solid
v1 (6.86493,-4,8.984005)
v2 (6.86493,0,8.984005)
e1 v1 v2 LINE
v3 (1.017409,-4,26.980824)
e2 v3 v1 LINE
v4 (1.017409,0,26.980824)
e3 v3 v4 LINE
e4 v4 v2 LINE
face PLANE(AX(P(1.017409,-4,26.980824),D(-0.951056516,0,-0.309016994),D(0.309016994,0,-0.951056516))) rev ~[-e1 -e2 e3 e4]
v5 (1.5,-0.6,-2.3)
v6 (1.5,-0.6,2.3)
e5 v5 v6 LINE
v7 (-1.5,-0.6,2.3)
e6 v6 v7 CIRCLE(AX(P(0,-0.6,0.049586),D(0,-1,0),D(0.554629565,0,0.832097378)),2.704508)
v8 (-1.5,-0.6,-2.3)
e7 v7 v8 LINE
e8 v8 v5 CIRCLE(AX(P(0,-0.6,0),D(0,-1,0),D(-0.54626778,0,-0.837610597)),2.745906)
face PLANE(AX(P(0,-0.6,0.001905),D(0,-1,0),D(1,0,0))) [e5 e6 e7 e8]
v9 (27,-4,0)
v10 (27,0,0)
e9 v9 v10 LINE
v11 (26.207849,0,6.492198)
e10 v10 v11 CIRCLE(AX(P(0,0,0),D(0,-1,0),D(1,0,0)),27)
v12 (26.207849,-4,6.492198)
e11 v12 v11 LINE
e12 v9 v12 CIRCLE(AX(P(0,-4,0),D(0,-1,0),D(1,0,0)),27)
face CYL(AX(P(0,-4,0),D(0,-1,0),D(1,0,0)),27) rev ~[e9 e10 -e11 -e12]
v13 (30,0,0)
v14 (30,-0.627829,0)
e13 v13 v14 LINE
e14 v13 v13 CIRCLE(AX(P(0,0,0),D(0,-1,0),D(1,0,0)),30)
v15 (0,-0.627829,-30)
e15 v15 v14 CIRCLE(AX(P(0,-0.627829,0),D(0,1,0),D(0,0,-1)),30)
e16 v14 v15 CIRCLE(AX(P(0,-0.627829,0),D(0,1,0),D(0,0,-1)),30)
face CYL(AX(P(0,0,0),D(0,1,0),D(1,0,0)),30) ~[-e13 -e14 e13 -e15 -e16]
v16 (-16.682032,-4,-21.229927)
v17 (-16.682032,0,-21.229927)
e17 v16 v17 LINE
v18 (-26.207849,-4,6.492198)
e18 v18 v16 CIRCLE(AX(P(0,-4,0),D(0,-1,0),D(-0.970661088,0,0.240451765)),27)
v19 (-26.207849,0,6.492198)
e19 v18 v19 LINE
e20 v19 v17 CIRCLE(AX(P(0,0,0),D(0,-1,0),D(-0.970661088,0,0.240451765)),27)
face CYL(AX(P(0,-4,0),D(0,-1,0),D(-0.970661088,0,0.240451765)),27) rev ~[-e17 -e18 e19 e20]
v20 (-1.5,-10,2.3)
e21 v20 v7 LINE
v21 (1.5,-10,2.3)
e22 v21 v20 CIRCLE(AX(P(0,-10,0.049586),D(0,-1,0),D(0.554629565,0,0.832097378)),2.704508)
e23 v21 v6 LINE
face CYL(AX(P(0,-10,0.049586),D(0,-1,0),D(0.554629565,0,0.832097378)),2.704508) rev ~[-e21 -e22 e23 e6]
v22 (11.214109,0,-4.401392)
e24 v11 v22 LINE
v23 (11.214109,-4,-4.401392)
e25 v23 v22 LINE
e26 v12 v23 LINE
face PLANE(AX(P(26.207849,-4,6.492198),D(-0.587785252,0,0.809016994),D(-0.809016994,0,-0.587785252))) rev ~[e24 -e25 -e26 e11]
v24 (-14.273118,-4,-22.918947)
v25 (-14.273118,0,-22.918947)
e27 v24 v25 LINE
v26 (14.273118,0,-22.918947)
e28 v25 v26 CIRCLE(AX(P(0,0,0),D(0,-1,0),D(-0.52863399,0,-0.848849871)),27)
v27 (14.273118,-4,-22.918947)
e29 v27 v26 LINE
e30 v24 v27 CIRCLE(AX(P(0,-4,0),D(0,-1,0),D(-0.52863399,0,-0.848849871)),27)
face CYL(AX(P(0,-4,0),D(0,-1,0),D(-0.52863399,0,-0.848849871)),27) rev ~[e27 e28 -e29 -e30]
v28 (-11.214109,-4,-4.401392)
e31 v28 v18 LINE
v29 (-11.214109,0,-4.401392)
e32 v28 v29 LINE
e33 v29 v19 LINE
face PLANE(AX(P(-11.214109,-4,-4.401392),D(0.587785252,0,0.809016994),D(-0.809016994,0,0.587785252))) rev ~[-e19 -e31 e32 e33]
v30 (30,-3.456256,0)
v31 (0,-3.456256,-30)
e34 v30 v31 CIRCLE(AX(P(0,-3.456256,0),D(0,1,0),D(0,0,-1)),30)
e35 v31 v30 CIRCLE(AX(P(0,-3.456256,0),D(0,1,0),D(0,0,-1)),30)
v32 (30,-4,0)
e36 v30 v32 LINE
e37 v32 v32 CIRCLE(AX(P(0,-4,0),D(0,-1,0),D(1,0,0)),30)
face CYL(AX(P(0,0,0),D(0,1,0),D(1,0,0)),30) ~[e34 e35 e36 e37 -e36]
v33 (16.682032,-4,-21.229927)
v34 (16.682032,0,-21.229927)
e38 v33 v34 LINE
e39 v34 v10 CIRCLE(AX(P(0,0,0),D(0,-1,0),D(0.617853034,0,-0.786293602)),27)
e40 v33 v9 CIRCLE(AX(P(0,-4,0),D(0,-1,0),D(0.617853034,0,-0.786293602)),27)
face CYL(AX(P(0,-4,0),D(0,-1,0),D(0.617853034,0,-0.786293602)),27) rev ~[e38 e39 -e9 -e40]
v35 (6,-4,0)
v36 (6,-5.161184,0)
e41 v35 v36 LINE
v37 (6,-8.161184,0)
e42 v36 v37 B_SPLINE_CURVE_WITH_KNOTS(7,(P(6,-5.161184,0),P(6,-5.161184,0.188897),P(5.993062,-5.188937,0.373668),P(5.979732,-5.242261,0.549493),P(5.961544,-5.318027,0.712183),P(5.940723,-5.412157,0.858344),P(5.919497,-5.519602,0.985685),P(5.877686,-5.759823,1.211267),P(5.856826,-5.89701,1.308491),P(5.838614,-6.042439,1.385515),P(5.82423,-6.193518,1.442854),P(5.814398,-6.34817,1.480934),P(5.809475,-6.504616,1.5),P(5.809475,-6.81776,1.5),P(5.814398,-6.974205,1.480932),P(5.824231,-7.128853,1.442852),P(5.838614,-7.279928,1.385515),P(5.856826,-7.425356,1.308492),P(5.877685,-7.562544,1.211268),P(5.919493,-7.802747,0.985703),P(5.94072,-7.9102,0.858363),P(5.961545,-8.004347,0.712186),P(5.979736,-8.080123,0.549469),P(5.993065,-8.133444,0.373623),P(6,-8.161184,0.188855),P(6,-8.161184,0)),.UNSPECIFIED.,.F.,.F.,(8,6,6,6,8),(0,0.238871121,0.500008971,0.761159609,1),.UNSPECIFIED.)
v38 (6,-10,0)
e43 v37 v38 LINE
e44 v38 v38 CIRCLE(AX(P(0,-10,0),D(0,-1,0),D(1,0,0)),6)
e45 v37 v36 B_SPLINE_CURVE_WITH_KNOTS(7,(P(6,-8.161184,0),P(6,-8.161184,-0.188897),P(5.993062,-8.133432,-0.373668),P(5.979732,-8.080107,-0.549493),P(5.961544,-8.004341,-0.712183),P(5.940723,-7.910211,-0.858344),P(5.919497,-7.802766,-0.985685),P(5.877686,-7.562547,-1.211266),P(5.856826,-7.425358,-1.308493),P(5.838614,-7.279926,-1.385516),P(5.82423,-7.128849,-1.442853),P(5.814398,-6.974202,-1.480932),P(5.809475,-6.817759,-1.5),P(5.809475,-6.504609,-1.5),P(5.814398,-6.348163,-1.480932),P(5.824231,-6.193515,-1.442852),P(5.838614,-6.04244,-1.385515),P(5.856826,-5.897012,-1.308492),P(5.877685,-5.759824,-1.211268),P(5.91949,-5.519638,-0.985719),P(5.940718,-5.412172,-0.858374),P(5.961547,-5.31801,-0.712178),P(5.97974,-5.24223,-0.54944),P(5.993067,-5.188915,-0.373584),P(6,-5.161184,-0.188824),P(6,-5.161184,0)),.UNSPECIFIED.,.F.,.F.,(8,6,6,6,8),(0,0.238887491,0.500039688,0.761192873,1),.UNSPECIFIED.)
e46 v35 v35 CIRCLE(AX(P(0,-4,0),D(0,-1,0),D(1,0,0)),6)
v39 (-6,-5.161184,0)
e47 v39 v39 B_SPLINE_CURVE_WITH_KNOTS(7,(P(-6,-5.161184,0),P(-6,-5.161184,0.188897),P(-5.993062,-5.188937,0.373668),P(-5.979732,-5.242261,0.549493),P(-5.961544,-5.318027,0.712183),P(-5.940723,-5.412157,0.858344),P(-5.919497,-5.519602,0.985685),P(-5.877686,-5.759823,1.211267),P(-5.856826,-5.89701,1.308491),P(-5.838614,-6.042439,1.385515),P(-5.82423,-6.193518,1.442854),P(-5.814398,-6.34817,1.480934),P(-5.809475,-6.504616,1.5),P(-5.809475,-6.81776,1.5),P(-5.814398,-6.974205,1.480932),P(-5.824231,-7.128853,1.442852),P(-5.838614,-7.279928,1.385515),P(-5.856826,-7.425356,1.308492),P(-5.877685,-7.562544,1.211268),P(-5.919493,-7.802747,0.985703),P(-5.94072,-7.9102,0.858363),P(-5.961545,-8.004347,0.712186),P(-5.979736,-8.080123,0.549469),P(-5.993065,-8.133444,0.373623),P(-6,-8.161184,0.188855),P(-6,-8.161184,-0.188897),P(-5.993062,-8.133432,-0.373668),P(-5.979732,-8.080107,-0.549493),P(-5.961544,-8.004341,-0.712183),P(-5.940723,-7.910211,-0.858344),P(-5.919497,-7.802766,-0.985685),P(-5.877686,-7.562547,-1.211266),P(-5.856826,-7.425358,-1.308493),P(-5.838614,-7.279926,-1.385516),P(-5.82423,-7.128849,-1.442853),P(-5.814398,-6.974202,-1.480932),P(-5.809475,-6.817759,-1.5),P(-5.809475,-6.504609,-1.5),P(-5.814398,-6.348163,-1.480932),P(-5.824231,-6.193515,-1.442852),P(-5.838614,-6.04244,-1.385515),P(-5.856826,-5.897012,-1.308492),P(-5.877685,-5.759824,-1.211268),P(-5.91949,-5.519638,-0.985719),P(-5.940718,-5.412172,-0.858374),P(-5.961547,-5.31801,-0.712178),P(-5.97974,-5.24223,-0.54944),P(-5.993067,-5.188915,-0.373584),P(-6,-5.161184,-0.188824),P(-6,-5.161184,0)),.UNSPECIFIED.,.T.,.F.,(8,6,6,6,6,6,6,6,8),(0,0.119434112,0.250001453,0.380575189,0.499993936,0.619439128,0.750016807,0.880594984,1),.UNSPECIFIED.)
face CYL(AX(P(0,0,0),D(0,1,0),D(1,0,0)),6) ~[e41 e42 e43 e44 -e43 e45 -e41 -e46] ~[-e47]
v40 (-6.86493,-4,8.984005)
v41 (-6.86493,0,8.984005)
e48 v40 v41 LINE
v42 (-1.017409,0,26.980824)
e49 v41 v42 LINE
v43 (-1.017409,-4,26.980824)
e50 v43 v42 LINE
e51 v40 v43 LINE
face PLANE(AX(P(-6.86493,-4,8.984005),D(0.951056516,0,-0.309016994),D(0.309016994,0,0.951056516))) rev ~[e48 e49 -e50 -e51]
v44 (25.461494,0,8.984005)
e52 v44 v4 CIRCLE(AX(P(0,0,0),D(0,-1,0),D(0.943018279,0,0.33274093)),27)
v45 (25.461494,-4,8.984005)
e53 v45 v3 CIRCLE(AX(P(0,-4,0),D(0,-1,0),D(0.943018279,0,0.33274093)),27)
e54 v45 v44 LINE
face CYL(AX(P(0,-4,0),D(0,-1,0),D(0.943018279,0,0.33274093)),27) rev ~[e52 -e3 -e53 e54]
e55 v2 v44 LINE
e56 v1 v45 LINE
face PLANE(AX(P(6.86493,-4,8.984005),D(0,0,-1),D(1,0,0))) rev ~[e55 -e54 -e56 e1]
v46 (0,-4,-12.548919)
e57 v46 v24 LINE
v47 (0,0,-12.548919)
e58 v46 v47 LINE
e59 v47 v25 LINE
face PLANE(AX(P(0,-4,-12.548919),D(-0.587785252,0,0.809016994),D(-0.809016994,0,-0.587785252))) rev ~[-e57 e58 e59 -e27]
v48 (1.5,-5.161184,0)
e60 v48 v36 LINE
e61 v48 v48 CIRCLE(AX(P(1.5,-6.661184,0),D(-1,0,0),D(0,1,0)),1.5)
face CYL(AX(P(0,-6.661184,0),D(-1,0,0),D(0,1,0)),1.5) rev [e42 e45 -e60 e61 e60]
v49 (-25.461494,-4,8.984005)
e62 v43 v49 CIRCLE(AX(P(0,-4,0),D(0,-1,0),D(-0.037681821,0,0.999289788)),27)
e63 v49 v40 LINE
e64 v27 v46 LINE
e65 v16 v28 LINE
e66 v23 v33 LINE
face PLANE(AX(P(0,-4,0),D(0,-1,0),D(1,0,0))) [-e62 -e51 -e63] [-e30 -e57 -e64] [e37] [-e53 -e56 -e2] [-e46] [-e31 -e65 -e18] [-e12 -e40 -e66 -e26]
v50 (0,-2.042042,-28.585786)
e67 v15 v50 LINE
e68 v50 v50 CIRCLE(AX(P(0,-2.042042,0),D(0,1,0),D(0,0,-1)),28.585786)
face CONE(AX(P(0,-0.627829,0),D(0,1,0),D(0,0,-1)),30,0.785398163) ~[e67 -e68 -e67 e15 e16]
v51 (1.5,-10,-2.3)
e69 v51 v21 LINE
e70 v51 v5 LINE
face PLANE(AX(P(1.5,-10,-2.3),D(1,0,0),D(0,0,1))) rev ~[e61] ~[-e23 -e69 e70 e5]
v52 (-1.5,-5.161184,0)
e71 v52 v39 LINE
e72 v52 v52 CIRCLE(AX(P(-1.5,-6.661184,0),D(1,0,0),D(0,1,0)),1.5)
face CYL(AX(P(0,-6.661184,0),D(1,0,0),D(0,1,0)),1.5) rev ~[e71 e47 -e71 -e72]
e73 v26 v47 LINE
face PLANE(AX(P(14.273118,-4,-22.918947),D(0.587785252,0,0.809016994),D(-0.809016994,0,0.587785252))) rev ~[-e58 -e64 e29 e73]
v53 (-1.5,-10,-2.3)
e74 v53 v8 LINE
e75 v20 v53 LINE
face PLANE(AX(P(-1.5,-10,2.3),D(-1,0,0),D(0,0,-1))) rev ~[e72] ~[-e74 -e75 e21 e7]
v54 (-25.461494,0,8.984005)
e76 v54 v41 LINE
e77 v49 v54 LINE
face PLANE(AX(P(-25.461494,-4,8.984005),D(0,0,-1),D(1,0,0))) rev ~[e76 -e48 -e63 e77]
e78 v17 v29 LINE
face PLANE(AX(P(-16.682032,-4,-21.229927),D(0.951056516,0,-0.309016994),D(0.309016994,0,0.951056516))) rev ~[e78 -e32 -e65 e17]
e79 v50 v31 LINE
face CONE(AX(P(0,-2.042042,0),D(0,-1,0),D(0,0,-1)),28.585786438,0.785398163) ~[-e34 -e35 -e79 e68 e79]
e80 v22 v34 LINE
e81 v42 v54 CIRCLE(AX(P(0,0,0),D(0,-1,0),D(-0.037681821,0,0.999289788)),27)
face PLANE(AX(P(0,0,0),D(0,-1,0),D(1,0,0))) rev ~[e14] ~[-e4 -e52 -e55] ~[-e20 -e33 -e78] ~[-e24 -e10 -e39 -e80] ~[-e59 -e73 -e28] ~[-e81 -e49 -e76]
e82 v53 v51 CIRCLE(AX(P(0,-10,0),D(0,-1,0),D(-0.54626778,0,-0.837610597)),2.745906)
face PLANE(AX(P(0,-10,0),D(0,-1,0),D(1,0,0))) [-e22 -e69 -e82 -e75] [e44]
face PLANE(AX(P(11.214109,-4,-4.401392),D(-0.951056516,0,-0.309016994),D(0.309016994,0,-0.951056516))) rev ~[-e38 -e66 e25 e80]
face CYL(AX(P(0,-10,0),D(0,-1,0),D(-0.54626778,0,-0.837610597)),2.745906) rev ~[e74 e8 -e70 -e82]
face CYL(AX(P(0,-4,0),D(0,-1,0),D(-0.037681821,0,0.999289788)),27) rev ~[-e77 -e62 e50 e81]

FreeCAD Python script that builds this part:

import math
import FreeCAD as App
import Part
import Sketcher
from FreeCAD import Vector
Q = App.Units.Quantity


def add_polygon(sketch, points):
    """Adds a closed chain of lines whose ends are joined by coincident constraints."""
    first, n = sketch.GeometryCount, len(points)
    for a, b in zip(points, points[1:] + points[:1]):
        sketch.addGeometry(Part.LineSegment(App.Vector(*a, 0), App.Vector(*b, 0)), False)
    for i in range(n):
        sketch.addConstraint(Sketcher.Constraint("Coincident", first + i, 2, first + (i + 1) % n, 1))

doc = App.newDocument("Part")
params = doc.addObject("Spreadsheet::Sheet", "Params")
for row, (alias, value) in enumerate([
    ("sketch1_diameter", "12 mm"),
    ("pad1_length", "10 mm"),
    ("sketch2_diameter", "60 mm"),
    ("sketch2_diameter2", "12 mm"),
    ("pad2_length", "4 mm"),
    ("sketch3_diameter", "3 mm"),
    ("sketch4_height", "4.6 mm"),
    ("pocket2_length", "9.4 mm"),
    ("sketch5_length", "2 mm"),
    ("groove_angle", "360 deg"),
    ("sketch6_radius", "27 mm"),
    ("pocket3_length", "25 mm"),
], start=1):
    params.set(f"A{row}", alias)
    params.set(f"B{row}", "=" + value)
    params.setAlias(f"B{row}", alias)

body = doc.addObject("PartDesign::Body", "Body")

# Sketch on XZ plane
sketch1 = body.newObject("Sketcher::SketchObject", "Sketch")
sketch1.AttachmentSupport = (doc.getObject("XZ_Plane"), [""])
sketch1.MapMode = "FlatFace"
sketch1.addGeometry(Part.Circle(Vector(0, 0, 0), Vector(0, 0, 1), 6), False)
sketch1.addConstraint(Sketcher.Constraint("Coincident", 0, 3, -1, 1))
sketch1.addConstraint(Sketcher.Constraint("Diameter", 0, Q("12 mm")))
sketch1.setExpression("Constraints[1]", "Params.sketch1_diameter")
pad1 = body.newObject("PartDesign::Pad", "Pad")
pad1.Profile = sketch1
pad1.setExpression("Length", "Params.pad1_length")

# Sketch on XZ plane
sketch2 = body.newObject("Sketcher::SketchObject", "Sketch001")
sketch2.AttachmentSupport = (doc.getObject("XZ_Plane"), [""])
sketch2.MapMode = "FlatFace"
sketch2.addGeometry(Part.Circle(Vector(0, 0, 0), Vector(0, 0, 1), 30), False)
sketch2.addGeometry(Part.Circle(Vector(0, 0, 0), Vector(0, 0, 1), 6), False)
sketch2.addConstraint(Sketcher.Constraint("Coincident", 0, 3, -1, 1))
sketch2.addConstraint(Sketcher.Constraint("Coincident", 1, 3, -1, 1))
sketch2.addConstraint(Sketcher.Constraint("Diameter", 0, Q("60 mm")))
sketch2.addConstraint(Sketcher.Constraint("Diameter", 1, Q("12 mm")))
sketch2.setExpression("Constraints[2]", "Params.sketch2_diameter")
sketch2.setExpression("Constraints[3]", "Params.sketch2_diameter2")
pad2 = body.newObject("PartDesign::Pad", "Pad001")
pad2.Profile = sketch2
pad2.setExpression("Length", "Params.pad2_length")

# Sketch on YZ plane
sketch3 = body.newObject("Sketcher::SketchObject", "Sketch002")
sketch3.AttachmentSupport = (doc.getObject("YZ_Plane"), [""])
sketch3.MapMode = "FlatFace"
sketch3.addGeometry(Part.Circle(Vector(-6.7, 0, 0), Vector(0, 0, 1), 1.5), False)
sketch3.addConstraint(Sketcher.Constraint("PointOnObject", 0, 3, -1))
sketch3.addConstraint(Sketcher.Constraint("Diameter", 0, Q("3 mm")))
sketch3.addConstraint(Sketcher.Constraint("DistanceX", 0, 3, -1, 1, Q("6.661184 mm")))
sketch3.setExpression("Constraints[1]", "Params.sketch3_diameter")
pocket1 = body.newObject("PartDesign::Pocket", "Pocket")
pocket1.Profile = sketch3
pocket1.Type = "ThroughAll"
pocket1.Midplane = True

# Sketch on XZ plane
sketch4 = body.newObject("Sketcher::SketchObject", "Sketch003")
sketch4.AttachmentSupport = (doc.getObject("XZ_Plane"), [""])
sketch4.MapMode = "FlatFace"
sketch4.AttachmentOffset = App.Placement(Vector(0, 0, 10), App.Rotation())
sketch4.addGeometry(Part.ArcOfCircle(Part.Circle(Vector(0, 0, 0), Vector(0, 0, 1), 2.7), math.radians(-123), math.radians(-57)), False)
sketch4.addGeometry(Part.LineSegment(Vector(1.5, -2.3, 0), Vector(1.5, 2.3, 0)), False)
sketch4.addGeometry(Part.ArcOfCircle(Part.Circle(Vector(0, 0, 0), Vector(0, 0, 1), 2.7), math.radians(56), math.radians(124)), False)
sketch4.addGeometry(Part.LineSegment(Vector(-1.5, 2.3, 0), Vector(-1.5, -2.3, 0)), False)
sketch4.addConstraint(Sketcher.Constraint("Coincident", 0, 2, 1, 1))
sketch4.addConstraint(Sketcher.Constraint("Coincident", 1, 2, 2, 1))
sketch4.addConstraint(Sketcher.Constraint("Coincident", 2, 2, 3, 1))
sketch4.addConstraint(Sketcher.Constraint("Coincident", 3, 2, 0, 1))
sketch4.addConstraint(Sketcher.Constraint("Vertical", 1))
sketch4.addConstraint(Sketcher.Constraint("Vertical", 3))
sketch4.addConstraint(Sketcher.Constraint("Coincident", 0, 3, -1, 1))
sketch4.addConstraint(Sketcher.Constraint("Symmetric", 0, 2, 2, 2, -1, 1))
sketch4.addConstraint(Sketcher.Constraint("PointOnObject", 2, 3, -2))
sketch4.addConstraint(Sketcher.Constraint("DistanceY", 1, 1, 1, 2, Q("4.6 mm")))
sketch4.addConstraint(Sketcher.Constraint("DistanceX", 2, 2, 1, 2, Q("3 mm")))
sketch4.addConstraint(Sketcher.Constraint("Radius", 2, Q("2.704508 mm")))
sketch4.setExpression("Constraints[9]", "Params.sketch4_height")
pocket2 = body.newObject("PartDesign::Pocket", "Pocket001")
pocket2.Profile = sketch4
pocket2.setExpression("Length", "Params.pocket2_length")

# Sketch on YZ plane
sketch5 = body.newObject("Sketcher::SketchObject", "Sketch004")
sketch5.AttachmentSupport = (doc.getObject("YZ_Plane"), [""])
sketch5.MapMode = "FlatFace"
add_polygon(sketch5, [(-3.5, -30), (-0.6, -30), (-2, -28.6)])  # lines 0-2
sketch5.addConstraint(Sketcher.Constraint("Horizontal", 0))
sketch5.addConstraint(Sketcher.Constraint("Perpendicular", 1, 2))
sketch5.addConstraint(Sketcher.Constraint("Equal", 1, 2))
sketch5.addConstraint(Sketcher.Constraint("Distance", 1, Q("2 mm")))
sketch5.addConstraint(Sketcher.Constraint("DistanceY", 0, 2, -1, 1, Q("30 mm")))
sketch5.addConstraint(Sketcher.Constraint("DistanceX", 0, 2, -1, 1, Q("0.627829 mm")))
sketch5.setExpression("Constraints[6]", "Params.sketch5_length")
groove = body.newObject("PartDesign::Groove", "Groove")
groove.Profile = sketch5
groove.ReferenceAxis = (sketch5, ["H_Axis"])
groove.setExpression("Angle", "Params.groove_angle")

# Sketch on XZ plane
sketch6 = body.newObject("Sketcher::SketchObject", "Sketch005")
sketch6.AttachmentSupport = (doc.getObject("XZ_Plane"), [""])
sketch6.MapMode = "FlatFace"
sketch6.AttachmentOffset = App.Placement(Vector(0, 0, 4), App.Rotation())
sketch6.addGeometry(Part.LineSegment(Vector(0, -13, 0), Vector(-14, -23, 0)), False)
sketch6.addGeometry(Part.ArcOfCircle(Part.Circle(Vector(0, 0, 0), Vector(0, 0, 1), 27), math.radians(-122), math.radians(-58)), False)
sketch6.addGeometry(Part.LineSegment(Vector(14, -23, 0), Vector(0, -13, 0)), False)
sketch6.addGeometry(Part.ArcOfCircle(Part.Circle(Vector(0, 0, 0), Vector(0, 0, 1), 27), math.radians(166), math.radians(232)), False)
sketch6.addGeometry(Part.LineSegment(Vector(-17, -21, 0), Vector(-11, -4, 0)), False)
sketch6.addGeometry(Part.LineSegment(Vector(-11, -4, 0), Vector(-26, 6, 0)), False)
sketch6.addGeometry(Part.ArcOfCircle(Part.Circle(Vector(0, 0, 0), Vector(0, 0, 1), 27), math.radians(92), math.radians(161)), False)
sketch6.addGeometry(Part.LineSegment(Vector(-25, 9, 0), Vector(-7, 9, 0)), False)
sketch6.addGeometry(Part.LineSegment(Vector(-7, 9, 0), Vector(-1, 27, 0)), False)
sketch6.addGeometry(Part.ArcOfCircle(Part.Circle(Vector(0, 0, 0), Vector(0, 0, 1), 27), math.radians(19), math.radians(88)), False)
sketch6.addGeometry(Part.LineSegment(Vector(1, 27, 0), Vector(7, 9, 0)), False)
sketch6.addGeometry(Part.LineSegment(Vector(7, 9, 0), Vector(25, 9, 0)), False)
sketch6.addGeometry(Part.LineSegment(Vector(11, -4, 0), Vector(17, -21, 0)), False)
sketch6.addGeometry(Part.ArcOfCircle(Part.Circle(Vector(0, 0, 0), Vector(0, 0, 1), 27), math.radians(-52), math.radians(0)), False)
sketch6.addGeometry(Part.ArcOfCircle(Part.Circle(Vector(0, 0, 0), Vector(0, 0, 1), 27), math.radians(0), math.radians(13.91)), False)
sketch6.addGeometry(Part.LineSegment(Vector(26, 6, 0), Vector(11, -4, 0)), False)
sketch6.addConstraint(Sketcher.Constraint("Coincident", 0, 2, 1, 1))
sketch6.addConstraint(Sketcher.Constraint("Coincident", 1, 2, 2, 1))
sketch6.addConstraint(Sketcher.Constraint("Coincident", 2, 2, 0, 1))
sketch6.addConstraint(Sketcher.Constraint("Coincident", 3, 2, 4, 1))
sketch6.addConstraint(Sketcher.Constraint("Coincident", 4, 2, 5, 1))
sketch6.addConstraint(Sketcher.Constraint("Coincident", 5, 2, 3, 1))
sketch6.addConstraint(Sketcher.Constraint("Coincident", 6, 2, 7, 1))
sketch6.addConstraint(Sketcher.Constraint("Coincident", 7, 2, 8, 1))
sketch6.addConstraint(Sketcher.Constraint("Coincident", 8, 2, 6, 1))
sketch6.addConstraint(Sketcher.Constraint("Coincident", 9, 2, 10, 1))
sketch6.addConstraint(Sketcher.Constraint("Coincident", 10, 2, 11, 1))
sketch6.addConstraint(Sketcher.Constraint("Coincident", 11, 2, 9, 1))
sketch6.addConstraint(Sketcher.Constraint("Coincident", 12, 2, 13, 1))
sketch6.addConstraint(Sketcher.Constraint("Tangent", 13, 2, 14, 1))
sketch6.addConstraint(Sketcher.Constraint("Coincident", 14, 2, 15, 1))
sketch6.addConstraint(Sketcher.Constraint("Coincident", 15, 2, 12, 1))
sketch6.addConstraint(Sketcher.Constraint("Horizontal", 7))
sketch6.addConstraint(Sketcher.Constraint("Horizontal", 11))
sketch6.addConstraint(Sketcher.Constraint("Coincident", 1, 3, -1, 1))
sketch6.addConstraint(Sketcher.Constraint("Coincident", 3, 3, -1, 1))
sketch6.addConstraint(Sketcher.Constraint("Coincident", 6, 3, -1, 1))
sketch6.addConstraint(Sketcher.Constraint("Coincident", 9, 3, -1, 1))
sketch6.addConstraint(Sketcher.Constraint("Coincident", 13, 3, -1, 1))
sketch6.addConstraint(Sketcher.Constraint("Equal", 1, 3))
sketch6.addConstraint(Sketcher.Constraint("Equal", 3, 6))
sketch6.addConstraint(Sketcher.Constraint("Equal", 6, 9))
sketch6.addConstraint(Sketcher.Constraint("Equal", 9, 13))
sketch6.addConstraint(Sketcher.Constraint("Equal", 13, 14))
sketch6.addConstraint(Sketcher.Constraint("Symmetric", 7, 2, 10, 2, -2))
sketch6.addConstraint(Sketcher.Constraint("Symmetric", 4, 2, 15, 2, -2))
sketch6.addConstraint(Sketcher.Constraint("PointOnObject", 2, 2, -2))
sketch6.addConstraint(Sketcher.Constraint("PointOnObject", 13, 2, -1))
sketch6.addConstraint(Sketcher.Constraint("Parallel", 2, 5))
sketch6.addConstraint(Sketcher.Constraint("Parallel", 4, 8))
sketch6.addConstraint(Sketcher.Constraint("Parallel", 10, 12))
sketch6.addConstraint(Sketcher.Constraint("Parallel", 0, 15))
sketch6.addConstraint(Sketcher.Constraint("Horizontal", 0, 2, 1, 2))
sketch6.addConstraint(Sketcher.Constraint("Horizontal", 8, 2, 9, 2))
sketch6.addConstraint(Sketcher.Constraint("Radius", 1, Q("27 mm")))
sketch6.addConstraint(Sketcher.Constraint("Angle", 0, Q("-144 deg")))
sketch6.addConstraint(Sketcher.Constraint("Angle", 4, Q("72 deg")))
sketch6.addConstraint(Sketcher.Constraint("Distance", 4, Q("17.694569 mm")))
sketch6.addConstraint(Sketcher.Constraint("Distance", 5, Q("18.533282 mm")))
sketch6.addConstraint(Sketcher.Constraint("DistanceX", 7, 1, 7, 2, Q("18.596563 mm")))
sketch6.addConstraint(Sketcher.Constraint("DistanceY", 2, 2, -1, 1, Q("12.548919 mm")))
sketch6.addConstraint(Sketcher.Constraint("DistanceX", 7, 2, -1, 1, Q("6.86493 mm")))
sketch6.setExpression("Constraints[38]", "Params.sketch6_radius")
pocket3 = body.newObject("PartDesign::Pocket", "Pocket002")
pocket3.Profile = sketch6
pocket3.setExpression("Length", "Params.pocket3_length")

doc.recompute()
